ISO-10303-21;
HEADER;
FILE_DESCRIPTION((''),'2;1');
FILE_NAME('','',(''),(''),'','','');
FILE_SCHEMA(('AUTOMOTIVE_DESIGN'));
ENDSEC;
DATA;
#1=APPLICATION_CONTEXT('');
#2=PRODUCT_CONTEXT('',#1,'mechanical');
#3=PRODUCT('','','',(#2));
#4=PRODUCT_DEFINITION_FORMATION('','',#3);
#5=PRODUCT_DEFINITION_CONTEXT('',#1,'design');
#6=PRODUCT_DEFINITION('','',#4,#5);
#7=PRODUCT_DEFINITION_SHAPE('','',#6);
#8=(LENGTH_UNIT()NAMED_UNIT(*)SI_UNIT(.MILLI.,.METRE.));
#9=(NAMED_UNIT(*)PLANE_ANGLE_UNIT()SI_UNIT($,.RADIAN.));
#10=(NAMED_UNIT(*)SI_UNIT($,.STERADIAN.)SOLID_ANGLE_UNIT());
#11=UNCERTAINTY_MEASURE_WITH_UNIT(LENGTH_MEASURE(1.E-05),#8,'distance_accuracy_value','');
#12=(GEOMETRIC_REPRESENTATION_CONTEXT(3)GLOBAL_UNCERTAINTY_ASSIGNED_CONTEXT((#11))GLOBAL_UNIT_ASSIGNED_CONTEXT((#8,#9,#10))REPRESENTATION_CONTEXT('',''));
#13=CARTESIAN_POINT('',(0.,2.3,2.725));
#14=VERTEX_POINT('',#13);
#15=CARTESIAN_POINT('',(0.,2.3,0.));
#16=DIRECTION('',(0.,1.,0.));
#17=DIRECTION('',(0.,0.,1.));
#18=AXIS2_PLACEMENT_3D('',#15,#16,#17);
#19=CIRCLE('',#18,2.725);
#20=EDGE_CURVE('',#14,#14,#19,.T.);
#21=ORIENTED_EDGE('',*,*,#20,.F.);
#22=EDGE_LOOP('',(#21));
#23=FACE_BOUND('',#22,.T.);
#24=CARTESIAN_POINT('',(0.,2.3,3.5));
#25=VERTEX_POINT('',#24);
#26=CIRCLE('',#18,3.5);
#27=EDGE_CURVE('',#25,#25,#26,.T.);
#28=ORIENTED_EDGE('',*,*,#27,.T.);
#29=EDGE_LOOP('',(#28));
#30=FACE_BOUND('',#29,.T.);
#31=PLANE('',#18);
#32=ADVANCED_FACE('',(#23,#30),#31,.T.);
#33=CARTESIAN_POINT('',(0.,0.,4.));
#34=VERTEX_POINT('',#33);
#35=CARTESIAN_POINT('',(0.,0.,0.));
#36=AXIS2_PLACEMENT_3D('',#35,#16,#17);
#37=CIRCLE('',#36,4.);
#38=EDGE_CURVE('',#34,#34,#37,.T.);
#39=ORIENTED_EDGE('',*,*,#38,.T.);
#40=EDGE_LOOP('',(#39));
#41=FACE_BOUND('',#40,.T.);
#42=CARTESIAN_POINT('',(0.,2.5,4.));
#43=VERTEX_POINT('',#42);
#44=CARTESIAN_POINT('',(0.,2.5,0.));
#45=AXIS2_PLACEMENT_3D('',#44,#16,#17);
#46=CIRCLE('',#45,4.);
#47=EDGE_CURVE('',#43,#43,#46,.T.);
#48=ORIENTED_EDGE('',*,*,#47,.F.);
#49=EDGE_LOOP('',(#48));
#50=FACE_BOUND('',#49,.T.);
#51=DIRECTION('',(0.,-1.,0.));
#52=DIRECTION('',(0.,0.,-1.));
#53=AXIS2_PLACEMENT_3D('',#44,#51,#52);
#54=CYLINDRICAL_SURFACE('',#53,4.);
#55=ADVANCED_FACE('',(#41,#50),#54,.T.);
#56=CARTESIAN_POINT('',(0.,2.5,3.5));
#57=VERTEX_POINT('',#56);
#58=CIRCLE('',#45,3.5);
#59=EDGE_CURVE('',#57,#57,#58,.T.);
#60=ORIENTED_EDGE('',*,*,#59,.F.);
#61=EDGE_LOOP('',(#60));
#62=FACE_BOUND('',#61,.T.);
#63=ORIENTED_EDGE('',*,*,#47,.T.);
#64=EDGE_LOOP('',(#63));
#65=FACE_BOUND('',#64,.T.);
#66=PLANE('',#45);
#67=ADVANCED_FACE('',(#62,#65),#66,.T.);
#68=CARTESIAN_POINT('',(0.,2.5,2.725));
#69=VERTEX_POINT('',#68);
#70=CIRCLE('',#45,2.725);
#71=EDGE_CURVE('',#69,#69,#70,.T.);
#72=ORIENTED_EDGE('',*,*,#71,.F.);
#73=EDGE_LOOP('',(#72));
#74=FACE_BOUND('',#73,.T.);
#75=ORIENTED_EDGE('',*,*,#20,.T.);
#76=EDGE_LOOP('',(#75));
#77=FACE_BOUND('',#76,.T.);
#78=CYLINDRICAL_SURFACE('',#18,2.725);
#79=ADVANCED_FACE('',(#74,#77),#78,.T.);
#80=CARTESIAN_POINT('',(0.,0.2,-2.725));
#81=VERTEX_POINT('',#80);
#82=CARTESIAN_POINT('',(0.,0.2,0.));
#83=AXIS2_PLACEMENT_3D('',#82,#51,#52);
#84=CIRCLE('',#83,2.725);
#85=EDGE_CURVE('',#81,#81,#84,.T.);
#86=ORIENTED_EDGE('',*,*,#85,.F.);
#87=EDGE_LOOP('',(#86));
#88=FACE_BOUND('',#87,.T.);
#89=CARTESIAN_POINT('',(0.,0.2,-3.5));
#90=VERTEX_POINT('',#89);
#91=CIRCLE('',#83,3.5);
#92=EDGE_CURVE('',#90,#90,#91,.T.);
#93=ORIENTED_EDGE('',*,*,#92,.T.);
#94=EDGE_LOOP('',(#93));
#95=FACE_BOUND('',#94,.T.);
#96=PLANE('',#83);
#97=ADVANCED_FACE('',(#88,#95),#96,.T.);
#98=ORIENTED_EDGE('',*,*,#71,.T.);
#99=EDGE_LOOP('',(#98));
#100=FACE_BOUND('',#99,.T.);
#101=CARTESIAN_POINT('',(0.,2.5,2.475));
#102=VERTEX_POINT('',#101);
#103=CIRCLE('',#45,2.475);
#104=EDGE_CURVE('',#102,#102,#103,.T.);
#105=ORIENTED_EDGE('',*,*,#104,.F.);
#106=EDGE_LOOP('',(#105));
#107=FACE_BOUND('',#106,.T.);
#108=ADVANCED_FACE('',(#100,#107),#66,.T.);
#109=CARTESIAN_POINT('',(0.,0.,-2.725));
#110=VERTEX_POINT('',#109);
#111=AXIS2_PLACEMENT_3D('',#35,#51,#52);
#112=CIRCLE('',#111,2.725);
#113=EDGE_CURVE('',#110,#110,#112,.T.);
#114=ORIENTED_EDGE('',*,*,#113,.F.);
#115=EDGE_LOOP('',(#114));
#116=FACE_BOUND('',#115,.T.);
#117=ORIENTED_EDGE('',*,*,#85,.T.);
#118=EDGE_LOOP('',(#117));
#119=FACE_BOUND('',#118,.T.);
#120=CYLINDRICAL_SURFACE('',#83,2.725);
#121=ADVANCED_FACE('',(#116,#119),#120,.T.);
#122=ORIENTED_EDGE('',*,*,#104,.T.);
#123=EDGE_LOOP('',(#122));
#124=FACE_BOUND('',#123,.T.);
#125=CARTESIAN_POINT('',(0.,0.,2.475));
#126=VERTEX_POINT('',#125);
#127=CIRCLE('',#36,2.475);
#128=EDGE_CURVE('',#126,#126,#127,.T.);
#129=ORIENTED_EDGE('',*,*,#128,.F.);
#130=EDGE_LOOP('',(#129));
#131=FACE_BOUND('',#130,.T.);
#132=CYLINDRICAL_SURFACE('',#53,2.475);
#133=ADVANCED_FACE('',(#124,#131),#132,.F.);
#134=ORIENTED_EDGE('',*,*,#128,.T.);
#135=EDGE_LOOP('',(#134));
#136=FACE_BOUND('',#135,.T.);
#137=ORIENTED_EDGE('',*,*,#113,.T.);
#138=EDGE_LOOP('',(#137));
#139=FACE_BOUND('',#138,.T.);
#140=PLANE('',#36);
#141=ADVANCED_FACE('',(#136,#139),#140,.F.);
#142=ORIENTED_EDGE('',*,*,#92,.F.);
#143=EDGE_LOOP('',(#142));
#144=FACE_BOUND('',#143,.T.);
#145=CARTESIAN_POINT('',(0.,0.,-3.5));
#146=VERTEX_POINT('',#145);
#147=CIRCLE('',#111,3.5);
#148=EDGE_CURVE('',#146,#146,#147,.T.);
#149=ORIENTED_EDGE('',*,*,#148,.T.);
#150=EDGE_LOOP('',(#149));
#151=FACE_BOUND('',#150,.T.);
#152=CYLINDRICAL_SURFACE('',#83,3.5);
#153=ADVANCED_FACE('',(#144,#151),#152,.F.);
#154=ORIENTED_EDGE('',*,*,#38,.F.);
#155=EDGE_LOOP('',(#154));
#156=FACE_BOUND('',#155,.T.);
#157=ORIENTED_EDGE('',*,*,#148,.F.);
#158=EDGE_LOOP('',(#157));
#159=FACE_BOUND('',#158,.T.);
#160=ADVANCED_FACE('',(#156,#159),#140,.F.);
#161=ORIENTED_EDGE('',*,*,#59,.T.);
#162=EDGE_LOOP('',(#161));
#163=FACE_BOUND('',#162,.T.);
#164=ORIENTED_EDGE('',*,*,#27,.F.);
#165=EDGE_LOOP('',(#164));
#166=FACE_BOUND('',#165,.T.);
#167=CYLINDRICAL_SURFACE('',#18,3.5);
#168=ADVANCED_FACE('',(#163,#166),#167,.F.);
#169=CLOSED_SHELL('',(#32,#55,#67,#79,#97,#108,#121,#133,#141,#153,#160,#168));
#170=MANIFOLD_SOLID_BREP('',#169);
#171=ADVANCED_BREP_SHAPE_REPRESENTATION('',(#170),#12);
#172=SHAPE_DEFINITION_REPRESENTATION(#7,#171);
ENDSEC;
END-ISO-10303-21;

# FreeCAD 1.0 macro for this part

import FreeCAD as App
import Part
import Sketcher
from FreeCAD import Vector

doc = App.newDocument("Part")
body = doc.addObject("PartDesign::Body", "Body")

# Sketch on XZ plane
sketch1 = doc.addObject("Sketcher::SketchObject", "Sketch")
body.addObject(sketch1)
sketch1.AttachmentSupport = (doc.XZ_Plane, [""])
sketch1.MapMode = "FlatFace"
sketch1.addGeometry(Part.Circle(Vector(0, 0, 0), Vector(0, 0, 1), 4), False)
sketch1.addGeometry(Part.Circle(Vector(0, 0, 0), Vector(0, 0, 1), 2.5), False)
sketch1.addConstraint(Sketcher.Constraint("Coincident", 0, 3, -1, 1))
sketch1.addConstraint(Sketcher.Constraint("Coincident", 1, 3, -1, 1))
sketch1.addConstraint(Sketcher.Constraint("Diameter", 0, 8.0))
sketch1.addConstraint(Sketcher.Constraint("Diameter", 1, 4.95))
pad1 = doc.addObject("PartDesign::Pad", "Pad")
body.addObject(pad1)
pad1.Profile = sketch1
pad1.Length = 2.5
pad1.Reversed = True

# Sketch on XZ plane
sketch2 = doc.addObject("Sketcher::SketchObject", "Sketch001")
body.addObject(sketch2)
sketch2.AttachmentSupport = (doc.XZ_Plane, [""])
sketch2.MapMode = "FlatFace"
sketch2.AttachmentOffset = App.Placement(Vector(0, 0, -2.5), App.Rotation())
sketch2.addGeometry(Part.Circle(Vector(0, 0, 0), Vector(0, 0, 1), 3.5), False)
sketch2.addGeometry(Part.Circle(Vector(0, 0, 0), Vector(0, 0, 1), 2.7), False)
sketch2.addConstraint(Sketcher.Constraint("Coincident", 0, 3, -1, 1))
sketch2.addConstraint(Sketcher.Constraint("Coincident", 1, 3, -1, 1))
sketch2.addConstraint(Sketcher.Constraint("Diameter", 0, 7.0))
sketch2.addConstraint(Sketcher.Constraint("Diameter", 1, 5.45))
pocket1 = doc.addObject("PartDesign::Pocket", "Pocket")
body.addObject(pocket1)
pocket1.Profile = sketch2
pocket1.Length = 0.2
pocket1.Reversed = True

# Sketch on XZ plane
sketch3 = doc.addObject("Sketcher::SketchObject", "Sketch002")
body.addObject(sketch3)
sketch3.AttachmentSupport = (doc.XZ_Plane, [""])
sketch3.MapMode = "FlatFace"
sketch3.AttachmentOffset = App.Placement(Vector(0, 0, -0.2), App.Rotation())
sketch3.addGeometry(Part.Circle(Vector(0, 0, 0), Vector(0, 0, 1), 3.5), False)
sketch3.addGeometry(Part.Circle(Vector(0, 0, 0), Vector(0, 0, 1), 2.7), False)
sketch3.addConstraint(Sketcher.Constraint("Coincident", 0, 3, -1, 1))
sketch3.addConstraint(Sketcher.Constraint("Coincident", 1, 3, -1, 1))
sketch3.addConstraint(Sketcher.Constraint("Diameter", 0, 7.0))
sketch3.addConstraint(Sketcher.Constraint("Diameter", 1, 5.45))
pocket2 = doc.addObject("PartDesign::Pocket", "Pocket001")
body.addObject(pocket2)
pocket2.Profile = sketch3
pocket2.Length = 0.2
pocket2.Reversed = True

doc.recompute()
